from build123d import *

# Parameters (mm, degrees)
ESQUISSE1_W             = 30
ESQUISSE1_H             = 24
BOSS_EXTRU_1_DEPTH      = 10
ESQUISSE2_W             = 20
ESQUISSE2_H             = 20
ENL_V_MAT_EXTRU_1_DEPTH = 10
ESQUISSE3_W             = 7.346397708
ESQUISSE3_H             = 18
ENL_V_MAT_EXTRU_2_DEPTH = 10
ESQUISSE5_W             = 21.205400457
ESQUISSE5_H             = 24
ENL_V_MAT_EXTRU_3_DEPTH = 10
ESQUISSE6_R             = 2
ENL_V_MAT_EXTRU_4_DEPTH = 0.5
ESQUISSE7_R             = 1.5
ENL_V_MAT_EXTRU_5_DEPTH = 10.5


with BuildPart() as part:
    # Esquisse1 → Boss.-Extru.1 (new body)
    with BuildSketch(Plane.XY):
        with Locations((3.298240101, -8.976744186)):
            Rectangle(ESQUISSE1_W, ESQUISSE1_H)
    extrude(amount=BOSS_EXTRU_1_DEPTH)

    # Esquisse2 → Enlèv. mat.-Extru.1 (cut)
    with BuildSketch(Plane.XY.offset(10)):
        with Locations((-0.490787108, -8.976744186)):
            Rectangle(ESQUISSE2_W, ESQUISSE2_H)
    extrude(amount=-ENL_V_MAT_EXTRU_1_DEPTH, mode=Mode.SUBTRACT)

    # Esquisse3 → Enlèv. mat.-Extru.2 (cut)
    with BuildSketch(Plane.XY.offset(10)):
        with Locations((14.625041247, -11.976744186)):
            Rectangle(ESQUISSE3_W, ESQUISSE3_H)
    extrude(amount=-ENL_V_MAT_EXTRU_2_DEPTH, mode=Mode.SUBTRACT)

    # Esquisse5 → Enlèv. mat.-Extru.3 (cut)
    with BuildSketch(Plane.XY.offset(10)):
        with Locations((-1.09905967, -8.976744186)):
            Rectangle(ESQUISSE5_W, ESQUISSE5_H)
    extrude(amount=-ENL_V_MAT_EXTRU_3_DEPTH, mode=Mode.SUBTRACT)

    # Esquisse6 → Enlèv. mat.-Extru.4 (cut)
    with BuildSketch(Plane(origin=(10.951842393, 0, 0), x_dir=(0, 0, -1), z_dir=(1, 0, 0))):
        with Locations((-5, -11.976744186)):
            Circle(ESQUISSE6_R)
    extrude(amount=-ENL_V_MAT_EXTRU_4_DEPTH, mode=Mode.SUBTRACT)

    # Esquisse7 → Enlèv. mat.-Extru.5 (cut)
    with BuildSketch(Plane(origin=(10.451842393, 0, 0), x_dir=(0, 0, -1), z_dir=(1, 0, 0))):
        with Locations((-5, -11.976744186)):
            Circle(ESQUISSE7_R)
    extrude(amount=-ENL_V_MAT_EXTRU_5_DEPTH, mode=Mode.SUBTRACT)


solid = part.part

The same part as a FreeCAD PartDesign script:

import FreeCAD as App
import Part
import Sketcher
Q = App.Units.Quantity


def add_polygon(sketch, points):
    """Adds a closed chain of lines whose ends are joined by coincident constraints."""
    first, n = sketch.GeometryCount, len(points)
    for a, b in zip(points, points[1:] + points[:1]):
        sketch.addGeometry(Part.LineSegment(App.Vector(*a, 0), App.Vector(*b, 0)), False)
    for i in range(n):
        sketch.addConstraint(Sketcher.Constraint("Coincident", first + i, 2, first + (i + 1) % n, 1))

doc = App.newDocument("Part")
body = doc.addObject("PartDesign::Body", "Body")

sketch1 = doc.addObject("Sketcher::SketchObject", "Sketch")
body.addObject(sketch1)
sketch1.AttachmentSupport = (doc.XY_Plane, [""])
sketch1.MapMode = "FlatFace"
add_polygon(sketch1, [(-12, 3), (-12, -21), (18, -21), (18, 3)])
sketch1.addConstraint(Sketcher.Constraint("Vertical", 0))
sketch1.addConstraint(Sketcher.Constraint("Horizontal", 1))
sketch1.addConstraint(Sketcher.Constraint("Vertical", 2))
sketch1.addConstraint(Sketcher.Constraint("Horizontal", 3))
sketch1.addConstraint(Sketcher.Constraint("DistanceX", 1, 1, 1, 2, Q("30 mm")))
sketch1.addConstraint(Sketcher.Constraint("DistanceY", 0, 2, 0, 1, Q("24 mm")))
sketch1.addConstraint(Sketcher.Constraint("DistanceX", 0, 2, -1, 1, Q("11.70176 mm")))
sketch1.addConstraint(Sketcher.Constraint("DistanceY", 0, 2, -1, 1, Q("20.976744 mm")))
pad1 = doc.addObject("PartDesign::Pad", "Pad")
body.addObject(pad1)
pad1.Profile = sketch1
pad1.Length = 10

sketch2 = doc.addObject("Sketcher::SketchObject", "Sketch001")
body.addObject(sketch2)
sketch2.AttachmentSupport = (doc.XY_Plane, [""])
sketch2.MapMode = "FlatFace"
sketch2.AttachmentOffset = App.Placement(App.Vector(0, 0, 10), App.Rotation())
add_polygon(sketch2, [(-10, 1), (-10, -19), (10, -19), (10, 1)])
sketch2.addConstraint(Sketcher.Constraint("Vertical", 0))
sketch2.addConstraint(Sketcher.Constraint("Horizontal", 1))
sketch2.addConstraint(Sketcher.Constraint("Vertical", 2))
sketch2.addConstraint(Sketcher.Constraint("Horizontal", 3))
sketch2.addConstraint(Sketcher.Constraint("Equal", 3, 0))
sketch2.addConstraint(Sketcher.Constraint("DistanceX", 1, 1, 1, 2, Q("20 mm")))
sketch2.addConstraint(Sketcher.Constraint("DistanceX", 0, 2, -1, 1, Q("10.490787 mm")))
sketch2.addConstraint(Sketcher.Constraint("DistanceY", 0, 2, -1, 1, Q("18.976744 mm")))
pocket1 = doc.addObject("PartDesign::Pocket", "Pocket")
body.addObject(pocket1)
pocket1.Profile = sketch2
pocket1.Length = 10

sketch3 = doc.addObject("Sketcher::SketchObject", "Sketch002")
body.addObject(sketch3)
sketch3.AttachmentSupport = (doc.XY_Plane, [""])
sketch3.MapMode = "FlatFace"
sketch3.AttachmentOffset = App.Placement(App.Vector(0, 0, 10), App.Rotation())
add_polygon(sketch3, [(11, -3), (11, -21), (18, -21), (18, -3)])
sketch3.addConstraint(Sketcher.Constraint("Vertical", 0))
sketch3.addConstraint(Sketcher.Constraint("Horizontal", 1))
sketch3.addConstraint(Sketcher.Constraint("Vertical", 2))
sketch3.addConstraint(Sketcher.Constraint("Horizontal", 3))
sketch3.addConstraint(Sketcher.Constraint("DistanceY", 0, 2, 0, 1, Q("18 mm")))
sketch3.addConstraint(Sketcher.Constraint("DistanceX", 1, 1, 1, 2, Q("7.346398 mm")))
sketch3.addConstraint(Sketcher.Constraint("DistanceX", -1, 1, 1, 2, Q("18.29824 mm")))
sketch3.addConstraint(Sketcher.Constraint("DistanceY", 0, 2, -1, 1, Q("20.976744 mm")))
pocket2 = doc.addObject("PartDesign::Pocket", "Pocket001")
body.addObject(pocket2)
pocket2.Profile = sketch3
pocket2.Length = 10

sketch4 = doc.addObject("Sketcher::SketchObject", "Sketch003")
body.addObject(sketch4)
sketch4.AttachmentSupport = (doc.XY_Plane, [""])
sketch4.MapMode = "FlatFace"
sketch4.AttachmentOffset = App.Placement(App.Vector(0, 0, 10), App.Rotation())
add_polygon(sketch4, [(-12, 3), (-12, -21), (10, -21), (10, 3)])
sketch4.addConstraint(Sketcher.Constraint("Vertical", 0))
sketch4.addConstraint(Sketcher.Constraint("Horizontal", 1))
sketch4.addConstraint(Sketcher.Constraint("Vertical", 2))
sketch4.addConstraint(Sketcher.Constraint("Horizontal", 3))
sketch4.addConstraint(Sketcher.Constraint("DistanceY", 0, 2, 0, 1, Q("24 mm")))
sketch4.addConstraint(Sketcher.Constraint("DistanceX", 1, 1, 1, 2, Q("21.2054 mm")))
sketch4.addConstraint(Sketcher.Constraint("DistanceX", 0, 2, -1, 1, Q("11.70176 mm")))
sketch4.addConstraint(Sketcher.Constraint("DistanceY", 0, 2, -1, 1, Q("20.976744 mm")))
pocket3 = doc.addObject("PartDesign::Pocket", "Pocket002")
body.addObject(pocket3)
pocket3.Profile = sketch4
pocket3.Length = 10

sketch5 = doc.addObject("Sketcher::SketchObject", "Sketch004")
body.addObject(sketch5)
sketch5.AttachmentSupport = (doc.YZ_Plane, [""])
sketch5.MapMode = "FlatFace"
sketch5.AttachmentOffset = App.Placement(App.Vector(0, 0, 10.951842), App.Rotation())
sketch5.addGeometry(Part.Circle(App.Vector(-12, 5, 0), App.Vector(0, 0, 1), 2), False)
sketch5.addConstraint(Sketcher.Constraint("Diameter", 0, Q("4 mm")))
sketch5.addConstraint(Sketcher.Constraint("DistanceY", -1, 1, 0, 3, Q("5 mm")))
sketch5.addConstraint(Sketcher.Constraint("DistanceX", 0, 3, -1, 1, Q("11.976744 mm")))
pocket4 = doc.addObject("PartDesign::Pocket", "Pocket003")
body.addObject(pocket4)
pocket4.Profile = sketch5
pocket4.Length = 0.5

sketch6 = doc.addObject("Sketcher::SketchObject", "Sketch005")
body.addObject(sketch6)
sketch6.AttachmentSupport = (doc.YZ_Plane, [""])
sketch6.MapMode = "FlatFace"
sketch6.AttachmentOffset = App.Placement(App.Vector(0, 0, 10.451842), App.Rotation())
sketch6.addGeometry(Part.Circle(App.Vector(-12, 5, 0), App.Vector(0, 0, 1), 1.5), False)
sketch6.addConstraint(Sketcher.Constraint("Diameter", 0, Q("3 mm")))
sketch6.addConstraint(Sketcher.Constraint("DistanceY", -1, 1, 0, 3, Q("5 mm")))
sketch6.addConstraint(Sketcher.Constraint("DistanceX", 0, 3, -1, 1, Q("11.976744 mm")))
pocket5 = doc.addObject("PartDesign::Pocket", "Pocket004")
body.addObject(pocket5)
pocket5.Profile = sketch6
pocket5.Length = 10.5

doc.recompute()
